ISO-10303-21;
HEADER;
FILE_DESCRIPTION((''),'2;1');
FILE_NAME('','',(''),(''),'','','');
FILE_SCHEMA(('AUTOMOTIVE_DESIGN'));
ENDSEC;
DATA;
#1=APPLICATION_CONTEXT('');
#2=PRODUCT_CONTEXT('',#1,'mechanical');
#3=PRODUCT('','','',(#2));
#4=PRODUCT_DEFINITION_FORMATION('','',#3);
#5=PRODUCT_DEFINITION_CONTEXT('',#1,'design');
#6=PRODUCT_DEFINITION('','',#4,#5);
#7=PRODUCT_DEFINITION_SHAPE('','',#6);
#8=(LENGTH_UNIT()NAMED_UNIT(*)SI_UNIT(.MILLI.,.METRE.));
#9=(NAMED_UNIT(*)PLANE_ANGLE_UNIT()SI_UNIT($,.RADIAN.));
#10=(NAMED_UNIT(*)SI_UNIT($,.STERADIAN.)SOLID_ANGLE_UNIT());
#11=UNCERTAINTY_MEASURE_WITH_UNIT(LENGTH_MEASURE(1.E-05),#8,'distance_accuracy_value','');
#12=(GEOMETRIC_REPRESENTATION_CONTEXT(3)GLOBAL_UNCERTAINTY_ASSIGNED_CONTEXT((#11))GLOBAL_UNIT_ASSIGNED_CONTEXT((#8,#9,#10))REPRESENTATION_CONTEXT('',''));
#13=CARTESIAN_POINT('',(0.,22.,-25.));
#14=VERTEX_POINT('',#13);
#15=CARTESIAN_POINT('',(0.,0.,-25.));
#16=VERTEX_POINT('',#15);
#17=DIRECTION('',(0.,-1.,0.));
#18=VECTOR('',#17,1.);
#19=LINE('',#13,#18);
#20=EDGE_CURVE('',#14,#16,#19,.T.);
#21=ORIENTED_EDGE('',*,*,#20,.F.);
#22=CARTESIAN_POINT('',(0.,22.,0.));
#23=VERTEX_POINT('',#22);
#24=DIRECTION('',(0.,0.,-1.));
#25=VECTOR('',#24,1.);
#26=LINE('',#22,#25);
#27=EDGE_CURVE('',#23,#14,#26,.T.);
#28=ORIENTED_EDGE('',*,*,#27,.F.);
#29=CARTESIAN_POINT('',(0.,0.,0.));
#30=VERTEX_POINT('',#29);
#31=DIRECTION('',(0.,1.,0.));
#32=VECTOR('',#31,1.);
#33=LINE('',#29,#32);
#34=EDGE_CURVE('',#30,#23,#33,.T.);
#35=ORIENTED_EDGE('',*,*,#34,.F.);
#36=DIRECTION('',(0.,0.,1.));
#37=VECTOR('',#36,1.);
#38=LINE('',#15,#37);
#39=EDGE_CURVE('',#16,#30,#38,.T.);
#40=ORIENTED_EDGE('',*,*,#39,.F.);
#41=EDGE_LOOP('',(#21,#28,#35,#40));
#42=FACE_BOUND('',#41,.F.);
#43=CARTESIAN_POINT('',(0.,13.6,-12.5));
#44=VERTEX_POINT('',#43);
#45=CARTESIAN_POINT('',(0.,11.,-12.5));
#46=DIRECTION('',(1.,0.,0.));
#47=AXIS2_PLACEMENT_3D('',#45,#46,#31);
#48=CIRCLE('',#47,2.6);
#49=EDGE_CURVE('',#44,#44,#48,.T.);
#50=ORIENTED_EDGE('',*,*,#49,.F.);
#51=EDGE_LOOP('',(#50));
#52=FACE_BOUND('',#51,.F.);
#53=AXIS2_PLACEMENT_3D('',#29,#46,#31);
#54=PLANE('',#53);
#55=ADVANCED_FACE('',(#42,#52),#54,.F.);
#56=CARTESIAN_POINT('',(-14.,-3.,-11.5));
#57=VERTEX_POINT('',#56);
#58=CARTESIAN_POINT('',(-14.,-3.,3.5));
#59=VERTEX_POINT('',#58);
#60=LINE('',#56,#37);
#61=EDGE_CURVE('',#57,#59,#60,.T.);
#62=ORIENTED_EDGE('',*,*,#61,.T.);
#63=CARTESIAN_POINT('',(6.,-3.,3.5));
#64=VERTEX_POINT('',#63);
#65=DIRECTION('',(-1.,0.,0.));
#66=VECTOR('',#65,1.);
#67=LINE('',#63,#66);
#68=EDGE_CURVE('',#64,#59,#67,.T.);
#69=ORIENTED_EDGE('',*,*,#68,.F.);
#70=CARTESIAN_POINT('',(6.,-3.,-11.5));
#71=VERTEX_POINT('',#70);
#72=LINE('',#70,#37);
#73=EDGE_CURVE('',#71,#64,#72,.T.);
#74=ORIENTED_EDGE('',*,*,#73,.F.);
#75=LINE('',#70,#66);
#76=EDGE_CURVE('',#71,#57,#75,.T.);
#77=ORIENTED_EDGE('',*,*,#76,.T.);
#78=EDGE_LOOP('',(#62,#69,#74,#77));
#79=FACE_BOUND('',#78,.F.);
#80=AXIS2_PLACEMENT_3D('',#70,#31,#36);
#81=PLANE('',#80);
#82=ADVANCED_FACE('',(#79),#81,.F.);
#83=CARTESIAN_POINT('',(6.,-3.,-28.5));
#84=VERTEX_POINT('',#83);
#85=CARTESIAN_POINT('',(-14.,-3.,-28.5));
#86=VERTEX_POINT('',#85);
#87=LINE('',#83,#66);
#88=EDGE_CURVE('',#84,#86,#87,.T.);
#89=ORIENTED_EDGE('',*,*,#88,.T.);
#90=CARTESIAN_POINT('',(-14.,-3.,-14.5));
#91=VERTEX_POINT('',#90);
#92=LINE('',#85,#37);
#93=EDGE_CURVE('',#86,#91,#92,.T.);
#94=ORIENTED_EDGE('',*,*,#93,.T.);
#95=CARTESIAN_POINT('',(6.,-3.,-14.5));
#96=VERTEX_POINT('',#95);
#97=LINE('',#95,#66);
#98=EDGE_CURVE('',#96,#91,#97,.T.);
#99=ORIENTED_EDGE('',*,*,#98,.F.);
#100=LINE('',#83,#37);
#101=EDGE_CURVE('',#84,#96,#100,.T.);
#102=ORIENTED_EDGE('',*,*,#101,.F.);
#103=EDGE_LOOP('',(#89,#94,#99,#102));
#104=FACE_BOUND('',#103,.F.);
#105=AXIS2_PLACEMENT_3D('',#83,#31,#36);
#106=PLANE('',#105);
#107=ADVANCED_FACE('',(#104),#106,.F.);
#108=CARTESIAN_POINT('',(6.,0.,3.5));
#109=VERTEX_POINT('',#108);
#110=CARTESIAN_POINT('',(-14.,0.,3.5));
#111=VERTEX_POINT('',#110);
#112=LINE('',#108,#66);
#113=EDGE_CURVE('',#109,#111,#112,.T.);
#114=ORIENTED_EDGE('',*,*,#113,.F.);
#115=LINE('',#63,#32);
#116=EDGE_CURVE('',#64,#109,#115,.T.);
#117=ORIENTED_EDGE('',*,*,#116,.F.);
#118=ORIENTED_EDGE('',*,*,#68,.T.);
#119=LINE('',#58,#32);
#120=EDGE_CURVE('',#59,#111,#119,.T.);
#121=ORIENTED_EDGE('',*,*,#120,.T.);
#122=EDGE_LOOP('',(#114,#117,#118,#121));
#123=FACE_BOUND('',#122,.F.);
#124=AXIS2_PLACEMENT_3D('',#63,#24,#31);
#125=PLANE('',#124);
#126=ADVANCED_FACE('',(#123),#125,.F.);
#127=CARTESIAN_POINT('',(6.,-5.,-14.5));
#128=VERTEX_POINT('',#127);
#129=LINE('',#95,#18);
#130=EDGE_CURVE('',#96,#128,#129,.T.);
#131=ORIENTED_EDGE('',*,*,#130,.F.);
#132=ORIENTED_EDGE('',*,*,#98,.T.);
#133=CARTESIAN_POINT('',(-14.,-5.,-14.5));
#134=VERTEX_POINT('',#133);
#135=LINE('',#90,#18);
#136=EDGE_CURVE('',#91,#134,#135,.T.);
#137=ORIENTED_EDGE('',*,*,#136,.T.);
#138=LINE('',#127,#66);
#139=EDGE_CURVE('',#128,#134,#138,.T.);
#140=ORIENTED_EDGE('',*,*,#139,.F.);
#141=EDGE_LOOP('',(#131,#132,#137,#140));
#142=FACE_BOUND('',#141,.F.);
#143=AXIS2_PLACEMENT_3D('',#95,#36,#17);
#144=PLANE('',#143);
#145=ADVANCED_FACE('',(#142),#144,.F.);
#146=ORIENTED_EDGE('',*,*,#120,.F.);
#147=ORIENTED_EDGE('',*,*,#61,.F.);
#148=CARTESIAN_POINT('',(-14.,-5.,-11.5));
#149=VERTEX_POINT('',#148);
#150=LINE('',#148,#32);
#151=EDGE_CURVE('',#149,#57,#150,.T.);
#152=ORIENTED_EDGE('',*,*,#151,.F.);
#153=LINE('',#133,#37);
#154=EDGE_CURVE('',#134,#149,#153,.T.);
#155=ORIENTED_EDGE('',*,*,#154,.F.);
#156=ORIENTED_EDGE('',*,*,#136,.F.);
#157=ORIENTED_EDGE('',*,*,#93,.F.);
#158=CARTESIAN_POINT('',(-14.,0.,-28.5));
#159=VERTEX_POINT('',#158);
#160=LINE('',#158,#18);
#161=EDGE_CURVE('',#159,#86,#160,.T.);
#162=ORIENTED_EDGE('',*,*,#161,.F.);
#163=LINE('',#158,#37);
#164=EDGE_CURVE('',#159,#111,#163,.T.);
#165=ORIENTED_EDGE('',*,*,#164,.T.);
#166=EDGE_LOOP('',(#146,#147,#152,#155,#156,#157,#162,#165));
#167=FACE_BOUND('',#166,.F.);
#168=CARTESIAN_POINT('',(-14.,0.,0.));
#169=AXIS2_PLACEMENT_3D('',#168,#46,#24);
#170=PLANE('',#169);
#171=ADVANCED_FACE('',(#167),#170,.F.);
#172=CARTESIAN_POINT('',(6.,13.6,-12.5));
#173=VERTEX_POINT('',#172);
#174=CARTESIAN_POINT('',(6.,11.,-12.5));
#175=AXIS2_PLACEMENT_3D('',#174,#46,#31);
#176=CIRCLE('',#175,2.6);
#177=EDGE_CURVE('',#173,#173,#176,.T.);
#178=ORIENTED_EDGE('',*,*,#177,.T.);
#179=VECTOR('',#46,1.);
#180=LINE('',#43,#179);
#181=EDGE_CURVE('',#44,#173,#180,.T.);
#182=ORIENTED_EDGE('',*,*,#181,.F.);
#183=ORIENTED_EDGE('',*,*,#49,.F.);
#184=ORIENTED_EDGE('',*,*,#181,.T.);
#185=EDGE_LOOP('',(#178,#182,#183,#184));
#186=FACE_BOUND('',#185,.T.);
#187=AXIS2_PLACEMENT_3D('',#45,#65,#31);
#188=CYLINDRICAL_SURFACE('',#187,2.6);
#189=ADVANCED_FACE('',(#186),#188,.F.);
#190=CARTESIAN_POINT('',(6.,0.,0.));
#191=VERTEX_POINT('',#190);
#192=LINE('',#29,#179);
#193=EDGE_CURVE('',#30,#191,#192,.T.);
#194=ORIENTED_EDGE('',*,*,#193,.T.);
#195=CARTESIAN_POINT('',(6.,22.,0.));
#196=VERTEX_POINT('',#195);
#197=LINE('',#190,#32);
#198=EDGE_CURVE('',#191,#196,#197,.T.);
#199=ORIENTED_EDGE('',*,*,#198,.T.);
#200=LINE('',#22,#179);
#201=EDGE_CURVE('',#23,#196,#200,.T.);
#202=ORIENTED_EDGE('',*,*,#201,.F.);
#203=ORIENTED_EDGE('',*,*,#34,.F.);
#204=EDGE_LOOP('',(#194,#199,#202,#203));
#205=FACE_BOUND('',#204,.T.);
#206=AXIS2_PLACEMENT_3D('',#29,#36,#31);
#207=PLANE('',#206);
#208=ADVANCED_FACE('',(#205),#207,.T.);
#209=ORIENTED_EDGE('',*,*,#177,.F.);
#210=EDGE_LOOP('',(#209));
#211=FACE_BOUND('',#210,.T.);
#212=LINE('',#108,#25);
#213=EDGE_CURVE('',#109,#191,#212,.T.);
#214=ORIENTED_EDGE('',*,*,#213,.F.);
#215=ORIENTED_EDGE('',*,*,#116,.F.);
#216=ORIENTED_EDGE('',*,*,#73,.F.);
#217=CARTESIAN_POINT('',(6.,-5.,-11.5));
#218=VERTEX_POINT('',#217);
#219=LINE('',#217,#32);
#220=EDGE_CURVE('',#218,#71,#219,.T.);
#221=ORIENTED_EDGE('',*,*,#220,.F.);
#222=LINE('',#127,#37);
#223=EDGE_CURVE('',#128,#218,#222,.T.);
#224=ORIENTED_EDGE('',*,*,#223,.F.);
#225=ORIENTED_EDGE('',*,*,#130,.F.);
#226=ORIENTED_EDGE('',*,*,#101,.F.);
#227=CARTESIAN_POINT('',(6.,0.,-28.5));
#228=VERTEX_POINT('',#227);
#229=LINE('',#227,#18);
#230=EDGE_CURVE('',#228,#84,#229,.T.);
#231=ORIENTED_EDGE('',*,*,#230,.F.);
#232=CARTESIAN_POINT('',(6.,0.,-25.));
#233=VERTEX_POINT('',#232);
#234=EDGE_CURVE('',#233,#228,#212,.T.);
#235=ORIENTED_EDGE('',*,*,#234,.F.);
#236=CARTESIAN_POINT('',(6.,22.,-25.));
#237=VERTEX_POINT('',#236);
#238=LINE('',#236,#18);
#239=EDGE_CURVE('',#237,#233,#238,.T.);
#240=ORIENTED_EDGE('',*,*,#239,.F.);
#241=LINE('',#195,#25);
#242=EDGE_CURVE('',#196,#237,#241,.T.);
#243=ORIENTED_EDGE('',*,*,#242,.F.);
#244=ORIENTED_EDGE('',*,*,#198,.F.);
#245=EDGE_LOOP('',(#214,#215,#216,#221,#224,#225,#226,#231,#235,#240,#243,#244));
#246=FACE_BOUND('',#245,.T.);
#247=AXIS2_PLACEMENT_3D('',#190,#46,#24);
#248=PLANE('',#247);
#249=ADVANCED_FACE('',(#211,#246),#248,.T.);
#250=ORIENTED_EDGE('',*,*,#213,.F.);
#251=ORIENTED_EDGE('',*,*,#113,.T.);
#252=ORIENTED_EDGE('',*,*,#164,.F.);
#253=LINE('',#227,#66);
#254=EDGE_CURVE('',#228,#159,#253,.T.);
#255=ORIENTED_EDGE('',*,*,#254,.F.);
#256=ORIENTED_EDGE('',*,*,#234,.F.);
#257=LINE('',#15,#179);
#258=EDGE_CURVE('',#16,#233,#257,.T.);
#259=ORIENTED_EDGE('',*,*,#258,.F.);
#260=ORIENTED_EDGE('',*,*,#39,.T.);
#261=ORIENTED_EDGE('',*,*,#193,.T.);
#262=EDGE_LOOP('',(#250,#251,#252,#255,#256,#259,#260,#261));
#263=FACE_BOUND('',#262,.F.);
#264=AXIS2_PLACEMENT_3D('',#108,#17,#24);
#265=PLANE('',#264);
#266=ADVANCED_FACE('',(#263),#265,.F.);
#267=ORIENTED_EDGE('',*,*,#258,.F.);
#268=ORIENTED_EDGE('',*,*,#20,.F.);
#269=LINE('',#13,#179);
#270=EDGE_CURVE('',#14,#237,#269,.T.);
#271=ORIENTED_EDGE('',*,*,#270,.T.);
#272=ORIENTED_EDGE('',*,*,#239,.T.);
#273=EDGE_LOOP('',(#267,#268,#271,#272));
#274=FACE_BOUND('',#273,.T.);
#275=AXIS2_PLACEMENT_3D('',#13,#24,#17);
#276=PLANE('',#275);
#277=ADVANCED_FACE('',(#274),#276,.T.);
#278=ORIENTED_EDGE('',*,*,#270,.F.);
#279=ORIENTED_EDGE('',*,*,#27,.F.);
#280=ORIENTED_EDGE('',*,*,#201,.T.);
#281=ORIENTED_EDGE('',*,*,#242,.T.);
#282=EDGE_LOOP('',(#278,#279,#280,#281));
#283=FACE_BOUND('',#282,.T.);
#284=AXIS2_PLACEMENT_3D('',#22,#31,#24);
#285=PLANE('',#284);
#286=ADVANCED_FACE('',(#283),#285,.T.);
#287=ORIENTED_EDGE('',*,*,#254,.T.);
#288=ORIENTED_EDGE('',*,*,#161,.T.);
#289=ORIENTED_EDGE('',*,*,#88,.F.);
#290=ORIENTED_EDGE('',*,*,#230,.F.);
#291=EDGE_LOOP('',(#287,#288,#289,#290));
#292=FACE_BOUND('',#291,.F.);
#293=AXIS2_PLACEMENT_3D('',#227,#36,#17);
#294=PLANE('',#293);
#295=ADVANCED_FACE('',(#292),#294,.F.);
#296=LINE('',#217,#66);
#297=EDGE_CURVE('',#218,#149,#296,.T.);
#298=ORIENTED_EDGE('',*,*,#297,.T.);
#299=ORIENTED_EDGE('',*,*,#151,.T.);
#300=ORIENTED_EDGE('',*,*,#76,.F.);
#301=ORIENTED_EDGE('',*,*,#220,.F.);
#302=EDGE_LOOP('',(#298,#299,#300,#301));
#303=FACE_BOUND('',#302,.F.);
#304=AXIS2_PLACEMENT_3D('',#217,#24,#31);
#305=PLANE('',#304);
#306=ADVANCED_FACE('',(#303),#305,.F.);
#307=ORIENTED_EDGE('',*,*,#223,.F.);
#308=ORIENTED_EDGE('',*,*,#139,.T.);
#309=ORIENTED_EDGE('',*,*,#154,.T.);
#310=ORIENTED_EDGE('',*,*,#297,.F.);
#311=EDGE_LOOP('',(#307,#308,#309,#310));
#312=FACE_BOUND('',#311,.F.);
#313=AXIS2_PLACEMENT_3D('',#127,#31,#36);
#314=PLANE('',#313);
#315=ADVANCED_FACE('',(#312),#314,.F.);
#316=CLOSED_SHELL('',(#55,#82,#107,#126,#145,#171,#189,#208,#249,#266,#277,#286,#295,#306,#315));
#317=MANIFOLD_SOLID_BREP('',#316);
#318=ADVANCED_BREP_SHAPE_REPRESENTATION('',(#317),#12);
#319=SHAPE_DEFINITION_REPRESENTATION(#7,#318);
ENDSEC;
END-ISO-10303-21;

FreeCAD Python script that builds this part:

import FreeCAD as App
import Part
import Sketcher
from FreeCAD import Vector


def add_polygon(sketch, points):
    """Adds a closed chain of lines whose ends are joined by coincident constraints."""
    first, n = sketch.GeometryCount, len(points)
    for a, b in zip(points, points[1:] + points[:1]):
        sketch.addGeometry(Part.LineSegment(App.Vector(*a, 0), App.Vector(*b, 0)), False)
    for i in range(n):
        sketch.addConstraint(Sketcher.Constraint("Coincident", first + i, 2, first + (i + 1) % n, 1))

doc = App.newDocument("Part")
body = doc.addObject("PartDesign::Body", "Body")

sketch1 = body.newObject("Sketcher::SketchObject", "Sketch")
sketch1.AttachmentSupport = (doc.getObject("YZ_Plane"), [""])
sketch1.MapMode = "FlatFace"
add_polygon(sketch1, [(22, 0), (0, 0), (0, -25), (22, -25)])
sketch1.addGeometry(Part.Circle(Vector(11, -12.5, 0), Vector(0, 0, 1), 2.6), False)
sketch1.addConstraint([
    Sketcher.Constraint("Horizontal", 0),
    Sketcher.Constraint("Vertical", 1),
    Sketcher.Constraint("Horizontal", 2),
    Sketcher.Constraint("Vertical", 3),
    Sketcher.Constraint("Coincident", 0, 2, -1, 1),
    Sketcher.Constraint("Diameter", 4, 5.2),
    Sketcher.Constraint("DistanceX", 0, 2, 0, 1, 22.0),
    Sketcher.Constraint("DistanceY", 1, 2, 1, 1, 25.0),
    Sketcher.Constraint("DistanceX", -1, 1, 4, 3, 11.0),
    Sketcher.Constraint("DistanceY", 4, 3, -1, 1, 12.5),
])
pad1 = body.newObject("PartDesign::Pad", "Pad")
pad1.Profile = sketch1
pad1.Length = 6

sketch2 = body.newObject("Sketcher::SketchObject", "Sketch001")
sketch2.AttachmentSupport = (doc.getObject("YZ_Plane"), [""])
sketch2.MapMode = "FlatFace"
sketch2.AttachmentOffset = App.Placement(Vector(0, 0, 6), App.Rotation())
add_polygon(sketch2, [(0, 3.5), (-3, 3.5), (-3, -11.5), (-5, -11.5), (-5, -14.5), (-3, -14.5), (-3, -28.5), (0, -28.5)])
sketch2.addConstraint([
    Sketcher.Constraint("Horizontal", 0),
    Sketcher.Constraint("Vertical", 1),
    Sketcher.Constraint("Horizontal", 2),
    Sketcher.Constraint("Vertical", 3),
    Sketcher.Constraint("Horizontal", 4),
    Sketcher.Constraint("Vertical", 5),
    Sketcher.Constraint("Horizontal", 6),
    Sketcher.Constraint("Vertical", 7),
    Sketcher.Constraint("PointOnObject", 6, 2, -2),
    Sketcher.Constraint("Vertical", 1, 2, 4, 2),
    Sketcher.Constraint("Equal", 6, 3),
    Sketcher.Constraint("DistanceX", 0, 2, 0, 1, 3.0),
    Sketcher.Constraint("DistanceX", 2, 2, 2, 1, 2.0),
    Sketcher.Constraint("DistanceY", -1, 1, 0, 2, 3.5),
    Sketcher.Constraint("DistanceY", 1, 2, -1, 1, 11.5),
    Sketcher.Constraint("DistanceY", 5, 2, 5, 1, 14.0),
])
pad2 = body.newObject("PartDesign::Pad", "Pad001")
pad2.Profile = sketch2
pad2.Length = 20
pad2.Reversed = True

doc.recompute()
